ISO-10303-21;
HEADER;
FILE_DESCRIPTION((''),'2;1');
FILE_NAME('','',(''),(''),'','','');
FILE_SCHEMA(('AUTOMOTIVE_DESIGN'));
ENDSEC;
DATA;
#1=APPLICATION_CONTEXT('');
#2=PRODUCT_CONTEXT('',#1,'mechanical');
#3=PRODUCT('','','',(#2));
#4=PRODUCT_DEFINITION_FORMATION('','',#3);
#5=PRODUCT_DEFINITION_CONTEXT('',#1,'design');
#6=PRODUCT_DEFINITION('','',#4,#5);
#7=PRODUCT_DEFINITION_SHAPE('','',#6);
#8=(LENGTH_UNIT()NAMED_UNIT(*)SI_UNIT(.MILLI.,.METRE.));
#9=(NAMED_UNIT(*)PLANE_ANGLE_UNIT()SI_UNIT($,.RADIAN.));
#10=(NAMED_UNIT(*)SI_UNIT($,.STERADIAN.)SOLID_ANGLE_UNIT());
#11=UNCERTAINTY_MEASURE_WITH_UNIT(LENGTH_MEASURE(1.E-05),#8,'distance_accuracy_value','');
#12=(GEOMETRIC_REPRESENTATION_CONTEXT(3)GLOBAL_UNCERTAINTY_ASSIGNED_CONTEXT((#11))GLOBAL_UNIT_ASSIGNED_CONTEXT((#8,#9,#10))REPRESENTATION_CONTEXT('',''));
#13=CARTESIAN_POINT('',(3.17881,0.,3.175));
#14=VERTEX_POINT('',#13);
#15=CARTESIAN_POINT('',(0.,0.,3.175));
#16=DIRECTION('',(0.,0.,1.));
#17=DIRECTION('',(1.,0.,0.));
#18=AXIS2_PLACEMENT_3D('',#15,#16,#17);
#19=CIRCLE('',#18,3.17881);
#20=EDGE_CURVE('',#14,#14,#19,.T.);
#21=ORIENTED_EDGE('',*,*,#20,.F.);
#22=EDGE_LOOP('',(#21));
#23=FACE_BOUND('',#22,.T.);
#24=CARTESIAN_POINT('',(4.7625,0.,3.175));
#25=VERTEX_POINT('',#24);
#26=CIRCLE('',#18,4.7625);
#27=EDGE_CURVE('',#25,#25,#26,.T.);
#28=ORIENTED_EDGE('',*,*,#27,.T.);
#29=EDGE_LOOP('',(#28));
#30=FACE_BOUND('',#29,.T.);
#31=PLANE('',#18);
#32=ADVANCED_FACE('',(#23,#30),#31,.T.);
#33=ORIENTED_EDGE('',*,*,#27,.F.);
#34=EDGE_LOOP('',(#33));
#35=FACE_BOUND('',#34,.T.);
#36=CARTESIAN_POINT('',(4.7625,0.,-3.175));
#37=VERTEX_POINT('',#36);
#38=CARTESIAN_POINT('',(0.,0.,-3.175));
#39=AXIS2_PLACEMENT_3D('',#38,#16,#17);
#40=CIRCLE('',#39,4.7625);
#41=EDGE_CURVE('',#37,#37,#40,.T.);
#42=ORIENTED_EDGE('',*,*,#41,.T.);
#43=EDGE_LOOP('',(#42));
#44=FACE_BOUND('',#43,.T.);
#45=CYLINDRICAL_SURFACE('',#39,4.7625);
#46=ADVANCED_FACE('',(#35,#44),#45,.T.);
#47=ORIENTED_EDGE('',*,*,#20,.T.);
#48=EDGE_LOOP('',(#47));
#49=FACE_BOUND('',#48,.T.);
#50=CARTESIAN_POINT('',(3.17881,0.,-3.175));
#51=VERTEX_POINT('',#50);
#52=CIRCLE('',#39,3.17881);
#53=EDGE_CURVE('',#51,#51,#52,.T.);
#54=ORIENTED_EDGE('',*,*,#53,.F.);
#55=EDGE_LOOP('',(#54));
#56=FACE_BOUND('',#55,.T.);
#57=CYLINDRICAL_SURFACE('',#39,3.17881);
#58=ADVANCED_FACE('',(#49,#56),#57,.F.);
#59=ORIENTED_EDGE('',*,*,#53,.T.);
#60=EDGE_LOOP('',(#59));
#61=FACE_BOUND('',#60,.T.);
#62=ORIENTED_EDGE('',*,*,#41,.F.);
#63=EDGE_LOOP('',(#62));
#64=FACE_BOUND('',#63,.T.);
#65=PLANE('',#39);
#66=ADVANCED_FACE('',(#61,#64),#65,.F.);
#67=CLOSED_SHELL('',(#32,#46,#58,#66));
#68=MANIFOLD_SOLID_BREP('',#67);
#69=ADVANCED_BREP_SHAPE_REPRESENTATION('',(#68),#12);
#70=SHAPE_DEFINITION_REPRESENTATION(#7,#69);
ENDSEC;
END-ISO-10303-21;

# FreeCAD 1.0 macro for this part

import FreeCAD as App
import Part
import Sketcher

V = App.Vector
Q = App.Units.Quantity

doc = App.newDocument("Part")
params = doc.addObject("Spreadsheet::Sheet", "Params")
for row, (alias, value) in enumerate([
    ("sketch1_diameter", "0.375 in"),
    ("pad1_length", "0.125 in"),
    ("pad1_length2", "0.125 in"),
], start=1):
    params.set(f"A{row}", alias)
    params.set(f"B{row}", "=" + value)
    params.setAlias(f"B{row}", alias)

body = doc.addObject("PartDesign::Body", "Body")

sketch1 = body.newObject("Sketcher::SketchObject", "Sketch")
sketch1.AttachmentSupport = (doc.getObject("XY_Plane"), [""])
sketch1.MapMode = "FlatFace"
sketch1.addGeometry(Part.Circle(V(0, 0, 0), V(0, 0, 1), 4.8), False)
sketch1.addGeometry(Part.Circle(V(0, 0, 0), V(0, 0, 1), 3.2), False)
sketch1.addConstraint(Sketcher.Constraint("Coincident", 0, 3, -1, 1))
sketch1.addConstraint(Sketcher.Constraint("Coincident", 1, 3, -1, 1))
sketch1.addConstraint(Sketcher.Constraint("Diameter", 0, Q("0.375 in")))
sketch1.addConstraint(Sketcher.Constraint("Diameter", 1, Q("0.2503 in")))
sketch1.setExpression("Constraints[2]", "Params.sketch1_diameter")
pad1 = body.newObject("PartDesign::Pad", "Pad")
pad1.Profile = sketch1
pad1.Type = "TwoLengths"
pad1.setExpression("Length", "Params.pad1_length")
pad1.setExpression("Length2", "Params.pad1_length2")

doc.recompute()
